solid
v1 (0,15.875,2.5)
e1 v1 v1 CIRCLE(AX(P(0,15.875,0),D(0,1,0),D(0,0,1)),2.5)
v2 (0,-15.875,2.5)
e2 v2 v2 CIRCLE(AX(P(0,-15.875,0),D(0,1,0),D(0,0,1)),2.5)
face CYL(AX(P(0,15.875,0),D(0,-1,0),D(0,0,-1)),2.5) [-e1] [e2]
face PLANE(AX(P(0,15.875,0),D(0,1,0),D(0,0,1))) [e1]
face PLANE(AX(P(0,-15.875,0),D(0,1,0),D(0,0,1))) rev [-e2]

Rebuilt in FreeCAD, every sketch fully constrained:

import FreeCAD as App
import Part
import Sketcher
Q = App.Units.Quantity

doc = App.newDocument("Part")
body = doc.addObject("PartDesign::Body", "Body")

# Sketch on XZ plane
sketch1 = doc.addObject("Sketcher::SketchObject", "Sketch")
body.addObject(sketch1)
sketch1.AttachmentSupport = (doc.XZ_Plane, [""])
sketch1.MapMode = "FlatFace"
sketch1.addGeometry(Part.Circle(App.Vector(0, 0, 0), App.Vector(0, 0, 1), 2.5), False)
sketch1.addConstraint([
    Sketcher.Constraint("Coincident", 0, 3, -1, 1),
    Sketcher.Constraint("Diameter", 0, Q("5 mm")),
])
pad1 = doc.addObject("PartDesign::Pad", "Pad")
body.addObject(pad1)
pad1.Profile = sketch1
pad1.Length = 31.75
pad1.Midplane = True

doc.recompute()
